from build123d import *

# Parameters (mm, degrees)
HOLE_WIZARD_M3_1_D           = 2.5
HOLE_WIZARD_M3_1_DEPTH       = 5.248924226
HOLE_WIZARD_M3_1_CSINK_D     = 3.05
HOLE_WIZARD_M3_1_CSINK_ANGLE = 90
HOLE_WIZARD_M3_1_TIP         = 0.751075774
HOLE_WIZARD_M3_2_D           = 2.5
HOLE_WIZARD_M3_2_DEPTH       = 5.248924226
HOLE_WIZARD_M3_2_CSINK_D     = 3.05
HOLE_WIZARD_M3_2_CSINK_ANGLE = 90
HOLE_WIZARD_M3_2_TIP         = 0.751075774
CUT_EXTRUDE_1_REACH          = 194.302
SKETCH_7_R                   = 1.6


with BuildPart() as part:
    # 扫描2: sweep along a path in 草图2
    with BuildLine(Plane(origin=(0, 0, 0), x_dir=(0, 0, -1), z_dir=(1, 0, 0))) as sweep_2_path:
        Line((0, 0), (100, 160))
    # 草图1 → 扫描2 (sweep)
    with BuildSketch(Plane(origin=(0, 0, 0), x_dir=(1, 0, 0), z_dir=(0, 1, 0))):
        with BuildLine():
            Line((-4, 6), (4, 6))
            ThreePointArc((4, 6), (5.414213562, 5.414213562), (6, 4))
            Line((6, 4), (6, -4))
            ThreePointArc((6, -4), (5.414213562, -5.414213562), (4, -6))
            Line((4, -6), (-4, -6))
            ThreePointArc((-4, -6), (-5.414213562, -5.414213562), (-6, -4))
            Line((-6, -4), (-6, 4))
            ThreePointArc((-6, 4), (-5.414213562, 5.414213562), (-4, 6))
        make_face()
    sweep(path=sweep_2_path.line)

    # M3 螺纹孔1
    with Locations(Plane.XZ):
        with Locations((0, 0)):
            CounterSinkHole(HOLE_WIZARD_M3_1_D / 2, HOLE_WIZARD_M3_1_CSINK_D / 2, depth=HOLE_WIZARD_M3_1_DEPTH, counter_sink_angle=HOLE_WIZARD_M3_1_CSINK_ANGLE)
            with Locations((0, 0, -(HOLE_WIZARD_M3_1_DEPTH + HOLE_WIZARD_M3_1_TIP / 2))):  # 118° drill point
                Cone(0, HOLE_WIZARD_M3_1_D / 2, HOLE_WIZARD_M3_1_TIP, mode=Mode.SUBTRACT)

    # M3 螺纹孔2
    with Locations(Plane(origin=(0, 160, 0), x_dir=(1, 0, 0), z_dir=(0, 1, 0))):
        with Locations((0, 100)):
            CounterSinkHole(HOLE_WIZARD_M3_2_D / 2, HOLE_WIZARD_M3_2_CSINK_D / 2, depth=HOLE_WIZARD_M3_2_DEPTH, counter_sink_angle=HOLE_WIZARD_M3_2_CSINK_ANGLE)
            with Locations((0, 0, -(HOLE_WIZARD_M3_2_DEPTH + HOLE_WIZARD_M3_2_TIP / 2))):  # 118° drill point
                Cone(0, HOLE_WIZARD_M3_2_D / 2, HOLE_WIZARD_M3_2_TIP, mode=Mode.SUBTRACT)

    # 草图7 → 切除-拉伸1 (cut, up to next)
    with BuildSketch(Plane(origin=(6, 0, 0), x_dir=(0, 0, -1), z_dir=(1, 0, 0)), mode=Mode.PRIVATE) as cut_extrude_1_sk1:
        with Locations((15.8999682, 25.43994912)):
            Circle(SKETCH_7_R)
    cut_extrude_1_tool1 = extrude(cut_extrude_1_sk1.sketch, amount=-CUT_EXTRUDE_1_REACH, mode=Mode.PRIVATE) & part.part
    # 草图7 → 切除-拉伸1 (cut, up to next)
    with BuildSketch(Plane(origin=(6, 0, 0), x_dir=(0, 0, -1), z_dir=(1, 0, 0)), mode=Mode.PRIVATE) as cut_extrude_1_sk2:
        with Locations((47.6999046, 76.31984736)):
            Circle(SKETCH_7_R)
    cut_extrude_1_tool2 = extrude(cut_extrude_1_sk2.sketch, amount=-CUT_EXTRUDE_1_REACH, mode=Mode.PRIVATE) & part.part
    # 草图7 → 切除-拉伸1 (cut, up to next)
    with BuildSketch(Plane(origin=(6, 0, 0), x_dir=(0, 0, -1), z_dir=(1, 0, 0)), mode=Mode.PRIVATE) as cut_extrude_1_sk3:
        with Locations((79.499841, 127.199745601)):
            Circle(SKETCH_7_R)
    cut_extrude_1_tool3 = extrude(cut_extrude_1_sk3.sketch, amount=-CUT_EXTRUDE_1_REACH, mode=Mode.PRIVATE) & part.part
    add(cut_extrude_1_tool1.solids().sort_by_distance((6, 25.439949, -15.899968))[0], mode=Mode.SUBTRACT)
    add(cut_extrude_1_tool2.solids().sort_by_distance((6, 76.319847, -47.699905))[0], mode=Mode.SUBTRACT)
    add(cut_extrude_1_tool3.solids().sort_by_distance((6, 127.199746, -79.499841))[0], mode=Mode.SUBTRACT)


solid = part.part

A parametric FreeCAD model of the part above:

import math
import FreeCAD as App
import Part
import Sketcher

V = App.Vector
Q = App.Units.Quantity

doc = App.newDocument("Part")
body = doc.addObject("PartDesign::Body", "Body")

# Sketch on XZ plane
sketch1 = doc.addObject("Sketcher::SketchObject", "Sketch")
body.addObject(sketch1)
sketch1.AttachmentSupport = (doc.XZ_Plane, [""])
sketch1.MapMode = "FlatFace"
sketch1.addGeometry(Part.LineSegment(V(4, -6, 0), V(-4, -6, 0)), False)
sketch1.addGeometry(Part.ArcOfCircle(Part.Circle(V(-4, -4, 0), V(0, 0, 1), 2), math.radians(-180), math.radians(-90)), False)
sketch1.addGeometry(Part.LineSegment(V(-6, -4, 0), V(-6, 4, 0)), False)
sketch1.addGeometry(Part.ArcOfCircle(Part.Circle(V(-4, 4, 0), V(0, 0, 1), 2), math.radians(90), math.radians(180)), False)
sketch1.addGeometry(Part.LineSegment(V(-4, 6, 0), V(4, 6, 0)), False)
sketch1.addGeometry(Part.ArcOfCircle(Part.Circle(V(4, 4, 0), V(0, 0, 1), 2), math.radians(0), math.radians(90)), False)
sketch1.addGeometry(Part.LineSegment(V(6, 4, 0), V(6, -4, 0)), False)
sketch1.addGeometry(Part.ArcOfCircle(Part.Circle(V(4, -4, 0), V(0, 0, 1), 2), math.radians(-90), math.radians(0)), False)
sketch1.addConstraint(Sketcher.Constraint("Tangent", 0, 2, 1, 2))
sketch1.addConstraint(Sketcher.Constraint("Tangent", 1, 1, 2, 1))
sketch1.addConstraint(Sketcher.Constraint("Tangent", 2, 2, 3, 2))
sketch1.addConstraint(Sketcher.Constraint("Tangent", 3, 1, 4, 1))
sketch1.addConstraint(Sketcher.Constraint("Tangent", 4, 2, 5, 2))
sketch1.addConstraint(Sketcher.Constraint("Tangent", 5, 1, 6, 1))
sketch1.addConstraint(Sketcher.Constraint("Tangent", 6, 2, 7, 2))
sketch1.addConstraint(Sketcher.Constraint("Tangent", 7, 1, 0, 1))
sketch1.addConstraint(Sketcher.Constraint("Horizontal", 0))
sketch1.addConstraint(Sketcher.Constraint("Vertical", 2))
sketch1.addConstraint(Sketcher.Constraint("Horizontal", 4))
sketch1.addConstraint(Sketcher.Constraint("Vertical", 6))
sketch1.addConstraint(Sketcher.Constraint("Equal", 1, 3))
sketch1.addConstraint(Sketcher.Constraint("Equal", 3, 5))
sketch1.addConstraint(Sketcher.Constraint("Equal", 5, 7))
sketch1.addConstraint(Sketcher.Constraint("Symmetric", 1, 3, 5, 3, -1, 1))
sketch1.addConstraint(Sketcher.Constraint("Equal", 4, 2))
sketch1.addConstraint(Sketcher.Constraint("Radius", 1, Q("2 mm")))
sketch1.addConstraint(Sketcher.Constraint("DistanceX", 0, 2, 0, 1, Q("8 mm")))

# Sketch on an angled plane
sketch2 = doc.addObject("Sketcher::SketchObject", "Sketch001")
body.addObject(sketch2)
sketch2.Placement = App.Placement(V(0, 0, 0), App.Rotation(V(0, 0.847998304, -0.52999894), V(1, 0, 0), V(0, -0.52999894, -0.847998304), "ZXY"))
sketch2.addGeometry(Part.LineSegment(V(0, 0, 0), V(189, 0, 0)), False)
sketch2.addConstraint(Sketcher.Constraint("Horizontal", 0))
sketch2.addConstraint(Sketcher.Constraint("Coincident", 0, 1, -1, 1))
sketch2.addConstraint(Sketcher.Constraint("DistanceX", 0, 1, 0, 2, Q("188.679623 mm")))
doc.recompute()

additivepipe = doc.addObject("PartDesign::AdditivePipe", "AdditivePipe")
body.addObject(additivepipe)
additivepipe.Profile = sketch1
additivepipe.Spine = (sketch2, ["Edge1"])

# Sketch on XZ plane
sketch3 = doc.addObject("Sketcher::SketchObject", "Sketch002")
body.addObject(sketch3)
sketch3.AttachmentSupport = (doc.XZ_Plane, [""])
sketch3.MapMode = "FlatFace"
sketch3.addGeometry(Part.Circle(V(0, 0, 0), V(0, 0, 1), 1.2), False)
sketch3.addConstraint(Sketcher.Constraint("Coincident", 0, 3, -1, 1))
sketch3.addConstraint(Sketcher.Constraint("Diameter", 0, Q("2.5 mm")))
doc.recompute()
hole = doc.addObject("PartDesign::Hole", "Hole")
body.addObject(hole)
hole.Profile = sketch3
hole.ThreadType = "None"
hole.Diameter = 2.5
hole.DepthType = "Dimension"
hole.Depth = 5.248924
hole.DrillPoint = "Angled"
hole.DrillPointAngle = 118
hole.HoleCutType = "Countersink"
hole.HoleCutDiameter = 3.05
hole.HoleCutCountersinkAngle = 90

# Sketch on XZ plane
sketch4 = doc.addObject("Sketcher::SketchObject", "Sketch003")
body.addObject(sketch4)
sketch4.AttachmentSupport = (doc.XZ_Plane, [""])
sketch4.MapMode = "FlatFace"
sketch4.AttachmentOffset = App.Placement(V(0, 0, -160), App.Rotation())
sketch4.addGeometry(Part.Circle(V(0, -100, 0), V(0, 0, 1), 1.2), False)
sketch4.addConstraint(Sketcher.Constraint("PointOnObject", 0, 3, -2))
sketch4.addConstraint(Sketcher.Constraint("Diameter", 0, Q("2.5 mm")))
sketch4.addConstraint(Sketcher.Constraint("DistanceY", 0, 3, -1, 1, Q("100 mm")))
doc.recompute()
hole2 = doc.addObject("PartDesign::Hole", "Hole001")
body.addObject(hole2)
hole2.Profile = sketch4
hole2.ThreadType = "None"
hole2.Diameter = 2.5
hole2.DepthType = "Dimension"
hole2.Depth = 5.248924
hole2.DrillPoint = "Angled"
hole2.DrillPointAngle = 118
hole2.HoleCutType = "Countersink"
hole2.HoleCutDiameter = 3.05
hole2.HoleCutCountersinkAngle = 90
hole2.Reversed = True

# Sketch on YZ plane
sketch5 = doc.addObject("Sketcher::SketchObject", "Sketch004")
body.addObject(sketch5)
sketch5.AttachmentSupport = (doc.YZ_Plane, [""])
sketch5.MapMode = "FlatFace"
sketch5.AttachmentOffset = App.Placement(V(0, 0, 6), App.Rotation())
sketch5.addGeometry(Part.Circle(V(25.439949, -15.899968, 0), V(0, 0, 1), 1.6), False)
sketch5.addConstraint(Sketcher.Constraint("Diameter", 0, Q("3.2 mm")))
sketch5.addConstraint(Sketcher.Constraint("DistanceX", -1, 1, 0, 3, Q("25.439949 mm")))
sketch5.addConstraint(Sketcher.Constraint("DistanceY", 0, 3, -1, 1, Q("15.899968 mm")))
pocket1 = doc.addObject("PartDesign::Pocket", "Pocket")
body.addObject(pocket1)
pocket1.Profile = sketch5
pocket1.Type = "UpToFirst"

# Sketch on YZ plane
sketch6 = doc.addObject("Sketcher::SketchObject", "Sketch005")
body.addObject(sketch6)
sketch6.AttachmentSupport = (doc.YZ_Plane, [""])
sketch6.MapMode = "FlatFace"
sketch6.AttachmentOffset = App.Placement(V(0, 0, 6), App.Rotation())
sketch6.addGeometry(Part.Circle(V(76.3, -47.7, 0), V(0, 0, 1), 1.6), False)
sketch6.addConstraint(Sketcher.Constraint("Diameter", 0, Q("3.2 mm")))
sketch6.addConstraint(Sketcher.Constraint("DistanceX", -1, 1, 0, 3, Q("76.319847 mm")))
sketch6.addConstraint(Sketcher.Constraint("DistanceY", 0, 3, -1, 1, Q("47.699905 mm")))
pocket2 = doc.addObject("PartDesign::Pocket", "Pocket001")
body.addObject(pocket2)
pocket2.Profile = sketch6
pocket2.Type = "UpToFirst"

# Sketch on YZ plane
sketch7 = doc.addObject("Sketcher::SketchObject", "Sketch006")
body.addObject(sketch7)
sketch7.AttachmentSupport = (doc.YZ_Plane, [""])
sketch7.MapMode = "FlatFace"
sketch7.AttachmentOffset = App.Placement(V(0, 0, 6), App.Rotation())
sketch7.addGeometry(Part.Circle(V(127.199746, -79.499841, 0), V(0, 0, 1), 1.6), False)
sketch7.addConstraint(Sketcher.Constraint("Diameter", 0, Q("3.2 mm")))
sketch7.addConstraint(Sketcher.Constraint("DistanceY", 0, 3, -1, 1, Q("79.499841 mm")))
sketch7.addConstraint(Sketcher.Constraint("DistanceX", -1, 1, 0, 3, Q("127.199746 mm")))
pocket3 = doc.addObject("PartDesign::Pocket", "Pocket002")
body.addObject(pocket3)
pocket3.Profile = sketch7
pocket3.Type = "UpToFirst"

doc.recompute()
